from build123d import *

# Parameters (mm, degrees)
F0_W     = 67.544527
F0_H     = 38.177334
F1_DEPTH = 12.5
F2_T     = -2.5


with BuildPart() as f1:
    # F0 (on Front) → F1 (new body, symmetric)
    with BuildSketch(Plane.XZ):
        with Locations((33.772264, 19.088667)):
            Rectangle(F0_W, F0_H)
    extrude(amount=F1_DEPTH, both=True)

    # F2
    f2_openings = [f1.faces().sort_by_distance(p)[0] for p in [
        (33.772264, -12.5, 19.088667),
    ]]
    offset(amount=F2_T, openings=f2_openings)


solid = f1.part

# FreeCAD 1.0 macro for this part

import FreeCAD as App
import Part
import Sketcher
from FreeCAD import Vector
Q = App.Units.Quantity


def faces_at(feature, points):
    """Names of the faces that lie closest to the given points."""
    faces = feature.Shape.Faces
    near = lambda p: min(range(len(faces)), key=lambda i: faces[i].distToShape(Part.Vertex(*p))[0])
    return sorted({f"Face{near(p) + 1}" for p in points})

doc = App.newDocument("Part")
body = doc.addObject("PartDesign::Body", "Body")

# Sketch on XZ plane
sketch1 = body.newObject("Sketcher::SketchObject", "Sketch")
sketch1.AttachmentSupport = (doc.getObject("XZ_Plane"), [""])
sketch1.MapMode = "FlatFace"
sketch1.addGeometry([
    Part.LineSegment(Vector(0, 38.177334, 0), Vector(0, 0, 0)),
    Part.LineSegment(Vector(0, 0, 0), Vector(67.544528, 0, 0)),
    Part.LineSegment(Vector(67.544528, 0, 0), Vector(67.544528, 38.177334, 0)),
    Part.LineSegment(Vector(67.544528, 38.177334, 0), Vector(0, 38.177334, 0)),
], False)
sketch1.addConstraint([
    Sketcher.Constraint("Coincident", 0, 2, 1, 1),
    Sketcher.Constraint("Coincident", 1, 2, 2, 1),
    Sketcher.Constraint("Coincident", 2, 2, 3, 1),
    Sketcher.Constraint("Coincident", 3, 2, 0, 1),
    Sketcher.Constraint("Vertical", 0),
    Sketcher.Constraint("Horizontal", 1),
    Sketcher.Constraint("Vertical", 2),
    Sketcher.Constraint("Horizontal", 3),
    Sketcher.Constraint("Coincident", 0, 2, -1, 1),
    Sketcher.Constraint("DistanceX", 1, 1, 1, 2, Q("67.544527 mm")),
    Sketcher.Constraint("DistanceY", 0, 2, 0, 1, Q("38.177334 mm")),
])
pad1 = body.newObject("PartDesign::Pad", "Pad")
pad1.Profile = sketch1
pad1.Length = 25
pad1.Midplane = True
doc.recompute()

thickness = body.newObject("PartDesign::Thickness", "Thickness")
thickness.Base = (pad1, faces_at(pad1, [(33.772, -12.5, 19.089)]))
thickness.Value = 2.5
thickness.Reversed = True
thickness.Join = "Arc"

doc.recompute()
